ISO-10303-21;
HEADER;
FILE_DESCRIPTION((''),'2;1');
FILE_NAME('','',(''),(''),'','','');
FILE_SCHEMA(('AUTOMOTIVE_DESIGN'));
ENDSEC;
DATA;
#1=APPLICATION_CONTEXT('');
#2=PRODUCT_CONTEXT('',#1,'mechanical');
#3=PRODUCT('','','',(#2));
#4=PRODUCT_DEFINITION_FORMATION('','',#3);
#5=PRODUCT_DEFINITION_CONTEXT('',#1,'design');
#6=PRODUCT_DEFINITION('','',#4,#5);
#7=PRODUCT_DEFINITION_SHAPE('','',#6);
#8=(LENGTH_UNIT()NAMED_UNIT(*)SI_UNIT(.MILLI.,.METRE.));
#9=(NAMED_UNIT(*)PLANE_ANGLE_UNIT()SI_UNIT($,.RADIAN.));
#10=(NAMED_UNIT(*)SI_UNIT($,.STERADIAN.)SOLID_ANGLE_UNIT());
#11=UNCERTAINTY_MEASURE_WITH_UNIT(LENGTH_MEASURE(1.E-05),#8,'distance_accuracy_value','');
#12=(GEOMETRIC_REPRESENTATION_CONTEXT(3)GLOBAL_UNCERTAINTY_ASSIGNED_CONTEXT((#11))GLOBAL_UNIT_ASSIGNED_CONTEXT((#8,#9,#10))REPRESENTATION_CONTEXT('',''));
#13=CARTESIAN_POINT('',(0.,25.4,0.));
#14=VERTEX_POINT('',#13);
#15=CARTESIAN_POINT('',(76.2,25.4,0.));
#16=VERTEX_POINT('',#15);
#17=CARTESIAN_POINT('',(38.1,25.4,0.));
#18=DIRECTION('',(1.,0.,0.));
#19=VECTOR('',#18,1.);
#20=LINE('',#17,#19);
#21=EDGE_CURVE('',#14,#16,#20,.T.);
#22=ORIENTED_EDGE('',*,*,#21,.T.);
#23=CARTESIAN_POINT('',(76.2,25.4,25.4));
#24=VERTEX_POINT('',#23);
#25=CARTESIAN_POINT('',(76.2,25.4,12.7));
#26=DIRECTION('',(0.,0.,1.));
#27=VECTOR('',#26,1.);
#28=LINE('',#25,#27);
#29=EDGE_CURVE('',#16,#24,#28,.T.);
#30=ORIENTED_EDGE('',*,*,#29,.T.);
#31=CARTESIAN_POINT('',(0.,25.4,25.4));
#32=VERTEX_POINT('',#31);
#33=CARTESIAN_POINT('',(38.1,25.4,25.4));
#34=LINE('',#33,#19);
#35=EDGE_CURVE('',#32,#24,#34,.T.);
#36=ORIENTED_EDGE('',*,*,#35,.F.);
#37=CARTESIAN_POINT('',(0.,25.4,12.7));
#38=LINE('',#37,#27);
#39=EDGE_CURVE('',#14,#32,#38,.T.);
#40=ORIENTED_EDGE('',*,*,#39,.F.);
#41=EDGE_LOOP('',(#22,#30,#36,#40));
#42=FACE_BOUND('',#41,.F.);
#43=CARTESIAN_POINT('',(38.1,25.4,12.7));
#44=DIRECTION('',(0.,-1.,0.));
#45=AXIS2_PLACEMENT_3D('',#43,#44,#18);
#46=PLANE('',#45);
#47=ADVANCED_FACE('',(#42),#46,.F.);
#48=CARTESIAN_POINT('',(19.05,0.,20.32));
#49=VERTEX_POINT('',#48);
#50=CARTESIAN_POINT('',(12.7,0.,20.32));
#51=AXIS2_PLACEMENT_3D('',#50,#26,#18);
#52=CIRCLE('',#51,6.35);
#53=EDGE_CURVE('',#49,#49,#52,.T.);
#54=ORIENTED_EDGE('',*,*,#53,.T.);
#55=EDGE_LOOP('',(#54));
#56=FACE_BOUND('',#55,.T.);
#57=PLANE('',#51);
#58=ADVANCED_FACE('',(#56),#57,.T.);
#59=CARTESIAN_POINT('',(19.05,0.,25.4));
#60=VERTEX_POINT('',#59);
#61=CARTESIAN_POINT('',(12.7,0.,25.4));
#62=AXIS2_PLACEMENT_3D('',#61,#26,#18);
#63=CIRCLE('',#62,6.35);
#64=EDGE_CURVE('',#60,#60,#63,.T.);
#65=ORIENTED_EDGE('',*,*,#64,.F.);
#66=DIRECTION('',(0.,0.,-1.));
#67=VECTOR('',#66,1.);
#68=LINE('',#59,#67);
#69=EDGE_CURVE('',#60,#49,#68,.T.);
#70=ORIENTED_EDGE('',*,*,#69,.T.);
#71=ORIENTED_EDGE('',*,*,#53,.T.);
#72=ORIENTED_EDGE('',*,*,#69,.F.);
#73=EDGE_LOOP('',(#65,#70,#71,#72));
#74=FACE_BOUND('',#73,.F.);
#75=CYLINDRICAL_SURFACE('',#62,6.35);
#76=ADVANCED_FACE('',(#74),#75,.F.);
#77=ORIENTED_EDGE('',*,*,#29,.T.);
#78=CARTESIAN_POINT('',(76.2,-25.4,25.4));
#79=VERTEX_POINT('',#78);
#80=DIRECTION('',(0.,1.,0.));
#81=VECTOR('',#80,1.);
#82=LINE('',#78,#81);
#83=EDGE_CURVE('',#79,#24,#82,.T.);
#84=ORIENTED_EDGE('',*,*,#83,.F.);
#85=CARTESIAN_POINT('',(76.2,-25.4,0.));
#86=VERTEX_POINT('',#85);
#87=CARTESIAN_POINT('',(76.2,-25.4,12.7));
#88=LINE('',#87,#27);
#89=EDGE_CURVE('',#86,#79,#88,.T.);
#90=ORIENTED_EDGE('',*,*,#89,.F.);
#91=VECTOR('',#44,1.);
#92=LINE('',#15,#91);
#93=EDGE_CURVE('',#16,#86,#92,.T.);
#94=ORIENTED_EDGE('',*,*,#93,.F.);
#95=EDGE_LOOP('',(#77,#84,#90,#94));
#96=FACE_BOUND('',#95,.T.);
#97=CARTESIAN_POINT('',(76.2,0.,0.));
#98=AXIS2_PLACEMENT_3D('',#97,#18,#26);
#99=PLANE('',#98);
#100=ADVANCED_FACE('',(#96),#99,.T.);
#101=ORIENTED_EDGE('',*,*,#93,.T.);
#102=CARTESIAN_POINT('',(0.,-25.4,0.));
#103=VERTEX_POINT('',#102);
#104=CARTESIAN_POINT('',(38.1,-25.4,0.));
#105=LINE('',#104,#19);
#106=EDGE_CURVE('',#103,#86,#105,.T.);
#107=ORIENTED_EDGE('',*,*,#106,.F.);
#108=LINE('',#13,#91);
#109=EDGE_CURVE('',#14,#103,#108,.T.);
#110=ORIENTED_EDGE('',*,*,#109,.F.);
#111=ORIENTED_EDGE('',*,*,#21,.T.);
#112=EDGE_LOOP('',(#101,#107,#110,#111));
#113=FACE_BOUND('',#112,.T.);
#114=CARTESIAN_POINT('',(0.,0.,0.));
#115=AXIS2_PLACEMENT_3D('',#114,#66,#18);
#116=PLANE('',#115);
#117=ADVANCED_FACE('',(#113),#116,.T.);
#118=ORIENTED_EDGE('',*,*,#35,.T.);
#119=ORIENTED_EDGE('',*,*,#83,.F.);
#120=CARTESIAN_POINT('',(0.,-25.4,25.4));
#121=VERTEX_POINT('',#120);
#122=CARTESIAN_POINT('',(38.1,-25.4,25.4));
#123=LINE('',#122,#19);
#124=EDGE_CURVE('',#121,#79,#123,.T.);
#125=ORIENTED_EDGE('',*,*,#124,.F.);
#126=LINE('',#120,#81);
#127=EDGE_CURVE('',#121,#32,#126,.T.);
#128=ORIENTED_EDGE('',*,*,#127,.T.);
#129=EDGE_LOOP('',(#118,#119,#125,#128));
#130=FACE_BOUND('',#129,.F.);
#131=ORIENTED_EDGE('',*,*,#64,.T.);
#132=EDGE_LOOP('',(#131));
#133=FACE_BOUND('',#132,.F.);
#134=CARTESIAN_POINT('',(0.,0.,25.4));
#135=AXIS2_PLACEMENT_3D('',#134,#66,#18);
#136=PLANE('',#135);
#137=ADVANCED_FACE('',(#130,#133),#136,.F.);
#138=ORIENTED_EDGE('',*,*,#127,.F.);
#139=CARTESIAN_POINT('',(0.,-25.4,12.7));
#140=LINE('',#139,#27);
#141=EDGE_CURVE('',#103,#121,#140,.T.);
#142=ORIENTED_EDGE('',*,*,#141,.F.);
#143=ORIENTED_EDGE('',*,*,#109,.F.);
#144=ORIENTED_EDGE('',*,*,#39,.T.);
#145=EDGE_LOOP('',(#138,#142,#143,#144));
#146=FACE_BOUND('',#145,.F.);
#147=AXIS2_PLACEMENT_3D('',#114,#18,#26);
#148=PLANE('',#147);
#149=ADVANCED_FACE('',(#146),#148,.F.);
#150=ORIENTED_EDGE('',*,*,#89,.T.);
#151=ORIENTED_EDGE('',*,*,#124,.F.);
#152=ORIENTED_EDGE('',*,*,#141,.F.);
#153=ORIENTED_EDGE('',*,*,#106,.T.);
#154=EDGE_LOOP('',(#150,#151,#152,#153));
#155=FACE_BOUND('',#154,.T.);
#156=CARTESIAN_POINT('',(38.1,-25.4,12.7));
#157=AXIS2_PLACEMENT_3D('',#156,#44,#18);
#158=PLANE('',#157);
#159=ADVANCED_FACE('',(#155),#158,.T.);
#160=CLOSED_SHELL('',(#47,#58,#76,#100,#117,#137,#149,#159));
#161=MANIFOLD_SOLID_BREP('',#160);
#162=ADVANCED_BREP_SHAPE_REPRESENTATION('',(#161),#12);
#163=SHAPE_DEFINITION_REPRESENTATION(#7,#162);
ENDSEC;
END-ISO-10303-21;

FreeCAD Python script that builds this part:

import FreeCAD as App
import Part
import Sketcher
from FreeCAD import Vector
Q = App.Units.Quantity


def add_polygon(sketch, points):
    """Adds a closed chain of lines whose ends are joined by coincident constraints."""
    first, n = sketch.GeometryCount, len(points)
    for a, b in zip(points, points[1:] + points[:1]):
        sketch.addGeometry(Part.LineSegment(App.Vector(*a, 0), App.Vector(*b, 0)), False)
    for i in range(n):
        sketch.addConstraint(Sketcher.Constraint("Coincident", first + i, 2, first + (i + 1) % n, 1))

doc = App.newDocument("Part")
body = doc.addObject("PartDesign::Body", "Body")

sketch1 = body.newObject("Sketcher::SketchObject", "Sketch")
sketch1.AttachmentSupport = (doc.getObject("XZ_Plane"), [""])
sketch1.MapMode = "FlatFace"
add_polygon(sketch1, [(0, 25), (0, 0), (76, 0), (76, 25)])
sketch1.addConstraint(Sketcher.Constraint("Vertical", 0))
sketch1.addConstraint(Sketcher.Constraint("Horizontal", 1))
sketch1.addConstraint(Sketcher.Constraint("Vertical", 2))
sketch1.addConstraint(Sketcher.Constraint("Horizontal", 3))
sketch1.addConstraint(Sketcher.Constraint("Coincident", 0, 2, -1, 1))
sketch1.addConstraint(Sketcher.Constraint("DistanceX", 1, 1, 1, 2, Q("3 in")))
sketch1.addConstraint(Sketcher.Constraint("DistanceY", 0, 2, 0, 1, Q("1 in")))
pad1 = body.newObject("PartDesign::Pad", "Pad")
pad1.Profile = sketch1
pad1.Length = Q("2 in")
pad1.Midplane = True

sketch2 = body.newObject("Sketcher::SketchObject", "Sketch001")
sketch2.AttachmentSupport = (doc.getObject("XY_Plane"), [""])
sketch2.MapMode = "FlatFace"
sketch2.AttachmentOffset = App.Placement(Vector(0, 0, 1 * 25.4), App.Rotation())
sketch2.addGeometry(Part.Circle(Vector(13, 0, 0), Vector(0, 0, 1), 6), False)
sketch2.addConstraint(Sketcher.Constraint("PointOnObject", 0, 3, -1))
sketch2.addConstraint(Sketcher.Constraint("Diameter", 0, Q("0.5 in")))
sketch2.addConstraint(Sketcher.Constraint("DistanceX", -1, 1, 0, 3, Q("0.5 in")))
pocket1 = body.newObject("PartDesign::Pocket", "Pocket")
pocket1.Profile = sketch2
pocket1.Length = Q("0.2 in")

doc.recompute()
